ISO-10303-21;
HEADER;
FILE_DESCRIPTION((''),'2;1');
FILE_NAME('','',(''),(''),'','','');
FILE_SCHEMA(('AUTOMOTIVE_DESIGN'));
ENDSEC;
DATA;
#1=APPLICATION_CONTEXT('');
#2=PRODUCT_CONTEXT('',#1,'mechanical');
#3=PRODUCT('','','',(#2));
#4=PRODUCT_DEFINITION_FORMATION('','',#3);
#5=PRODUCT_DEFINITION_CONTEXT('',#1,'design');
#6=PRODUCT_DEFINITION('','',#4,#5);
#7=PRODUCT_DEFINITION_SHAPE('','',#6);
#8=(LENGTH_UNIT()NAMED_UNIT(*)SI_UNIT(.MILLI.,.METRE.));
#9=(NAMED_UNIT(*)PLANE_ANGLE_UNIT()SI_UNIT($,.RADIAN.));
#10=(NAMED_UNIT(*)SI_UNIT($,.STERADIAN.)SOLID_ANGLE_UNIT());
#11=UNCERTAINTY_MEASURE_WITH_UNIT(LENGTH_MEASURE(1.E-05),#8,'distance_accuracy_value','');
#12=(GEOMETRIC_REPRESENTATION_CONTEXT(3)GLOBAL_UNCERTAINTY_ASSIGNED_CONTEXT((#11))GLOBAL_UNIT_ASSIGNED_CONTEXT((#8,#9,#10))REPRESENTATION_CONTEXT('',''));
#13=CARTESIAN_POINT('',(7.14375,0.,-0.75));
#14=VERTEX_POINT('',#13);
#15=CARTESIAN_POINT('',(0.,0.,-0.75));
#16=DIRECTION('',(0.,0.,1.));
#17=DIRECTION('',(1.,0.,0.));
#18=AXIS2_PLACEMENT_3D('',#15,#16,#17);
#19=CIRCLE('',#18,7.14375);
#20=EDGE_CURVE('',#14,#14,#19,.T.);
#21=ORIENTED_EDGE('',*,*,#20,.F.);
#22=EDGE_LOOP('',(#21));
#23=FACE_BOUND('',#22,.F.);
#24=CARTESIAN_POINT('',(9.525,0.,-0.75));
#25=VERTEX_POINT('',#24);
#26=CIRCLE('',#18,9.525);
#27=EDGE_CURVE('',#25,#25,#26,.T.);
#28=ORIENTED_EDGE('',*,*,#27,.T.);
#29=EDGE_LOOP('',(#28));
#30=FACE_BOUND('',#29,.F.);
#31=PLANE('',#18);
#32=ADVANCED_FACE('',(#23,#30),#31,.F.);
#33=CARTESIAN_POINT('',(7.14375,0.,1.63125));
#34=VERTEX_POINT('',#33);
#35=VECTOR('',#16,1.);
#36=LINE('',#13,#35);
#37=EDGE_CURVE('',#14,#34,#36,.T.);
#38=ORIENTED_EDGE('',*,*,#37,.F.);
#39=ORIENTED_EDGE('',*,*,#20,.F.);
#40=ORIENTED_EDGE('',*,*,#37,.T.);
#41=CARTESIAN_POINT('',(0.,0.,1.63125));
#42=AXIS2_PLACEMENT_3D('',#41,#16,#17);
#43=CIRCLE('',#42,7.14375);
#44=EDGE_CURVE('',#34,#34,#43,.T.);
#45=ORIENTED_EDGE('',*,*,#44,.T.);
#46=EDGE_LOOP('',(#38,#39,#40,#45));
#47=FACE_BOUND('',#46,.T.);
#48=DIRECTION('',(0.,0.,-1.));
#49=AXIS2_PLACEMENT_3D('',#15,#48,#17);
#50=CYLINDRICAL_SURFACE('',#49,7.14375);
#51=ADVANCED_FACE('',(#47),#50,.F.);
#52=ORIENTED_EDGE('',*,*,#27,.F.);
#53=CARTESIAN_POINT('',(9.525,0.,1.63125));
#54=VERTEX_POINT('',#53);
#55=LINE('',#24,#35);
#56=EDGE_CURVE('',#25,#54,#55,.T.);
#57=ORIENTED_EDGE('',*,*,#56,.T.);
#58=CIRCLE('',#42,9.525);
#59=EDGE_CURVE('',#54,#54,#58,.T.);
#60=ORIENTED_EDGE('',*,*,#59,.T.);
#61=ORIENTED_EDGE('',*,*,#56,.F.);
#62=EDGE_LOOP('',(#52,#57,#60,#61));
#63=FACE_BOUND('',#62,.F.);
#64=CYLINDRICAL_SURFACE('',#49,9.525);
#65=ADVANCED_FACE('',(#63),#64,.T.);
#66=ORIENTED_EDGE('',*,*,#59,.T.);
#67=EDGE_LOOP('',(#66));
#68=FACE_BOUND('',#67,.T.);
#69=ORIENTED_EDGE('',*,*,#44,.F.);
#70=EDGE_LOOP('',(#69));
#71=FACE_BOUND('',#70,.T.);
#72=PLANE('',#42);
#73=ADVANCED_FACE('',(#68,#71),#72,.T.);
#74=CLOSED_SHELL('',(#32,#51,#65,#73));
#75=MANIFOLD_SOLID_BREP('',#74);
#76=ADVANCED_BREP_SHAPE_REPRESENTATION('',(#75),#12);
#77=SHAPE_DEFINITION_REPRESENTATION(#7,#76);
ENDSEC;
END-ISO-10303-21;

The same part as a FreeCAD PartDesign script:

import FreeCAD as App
import Part
import Sketcher

V = App.Vector
Q = App.Units.Quantity

doc = App.newDocument("Part")
body = doc.addObject("PartDesign::Body", "Body")

# Sketch on XY plane
sketch1 = body.newObject("Sketcher::SketchObject", "Sketch")
sketch1.AttachmentSupport = (doc.getObject("XY_Plane"), [""])
sketch1.MapMode = "FlatFace"
sketch1.addGeometry(Part.Circle(V(0, 0, 0), V(0, 0, 1), 7), False)
sketch1.addConstraint([
    Sketcher.Constraint("Coincident", 0, 3, -1, 1),
    Sketcher.Constraint("Diameter", 0, Q("0.5625 in")),
])
pad1 = body.newObject("PartDesign::Pad", "Pad")
pad1.Profile = sketch1
pad1.Length = Q("0.09375 in")
body2 = doc.addObject("PartDesign::Body", "Body001")

# Sketch on XY plane
sketch2 = body2.newObject("Sketcher::SketchObject", "Sketch001")
sketch2.AttachmentSupport = (doc.getObject("XY_Plane001"), [""])
sketch2.MapMode = "FlatFace"
sketch2.addGeometry(Part.Circle(V(0, 0, 0), V(0, 0, 1), 10), False)
sketch2.addConstraint([
    Sketcher.Constraint("Coincident", 0, 3, -1, 1),
    Sketcher.Constraint("Diameter", 0, Q("0.75 in")),
])
pad2 = body2.newObject("PartDesign::Pad", "Pad001")
pad2.Profile = sketch2
pad2.Length = Q("0.09375 in")
doc.recompute()

boolean = body2.newObject("PartDesign::Boolean", "Boolean")
boolean.Type = "Cut"
boolean.addObjects([body])
body3 = doc.addObject("PartDesign::Body", "Body002")
doc.recompute()

body2.Placement = App.Placement(V(0, 0, -0.75), App.Rotation(V(0, 0, 1), 0))
boolean2 = body3.newObject("PartDesign::Boolean", "Boolean001")
boolean2.Type = "Fuse"
boolean2.addObjects([body2])

doc.recompute()
